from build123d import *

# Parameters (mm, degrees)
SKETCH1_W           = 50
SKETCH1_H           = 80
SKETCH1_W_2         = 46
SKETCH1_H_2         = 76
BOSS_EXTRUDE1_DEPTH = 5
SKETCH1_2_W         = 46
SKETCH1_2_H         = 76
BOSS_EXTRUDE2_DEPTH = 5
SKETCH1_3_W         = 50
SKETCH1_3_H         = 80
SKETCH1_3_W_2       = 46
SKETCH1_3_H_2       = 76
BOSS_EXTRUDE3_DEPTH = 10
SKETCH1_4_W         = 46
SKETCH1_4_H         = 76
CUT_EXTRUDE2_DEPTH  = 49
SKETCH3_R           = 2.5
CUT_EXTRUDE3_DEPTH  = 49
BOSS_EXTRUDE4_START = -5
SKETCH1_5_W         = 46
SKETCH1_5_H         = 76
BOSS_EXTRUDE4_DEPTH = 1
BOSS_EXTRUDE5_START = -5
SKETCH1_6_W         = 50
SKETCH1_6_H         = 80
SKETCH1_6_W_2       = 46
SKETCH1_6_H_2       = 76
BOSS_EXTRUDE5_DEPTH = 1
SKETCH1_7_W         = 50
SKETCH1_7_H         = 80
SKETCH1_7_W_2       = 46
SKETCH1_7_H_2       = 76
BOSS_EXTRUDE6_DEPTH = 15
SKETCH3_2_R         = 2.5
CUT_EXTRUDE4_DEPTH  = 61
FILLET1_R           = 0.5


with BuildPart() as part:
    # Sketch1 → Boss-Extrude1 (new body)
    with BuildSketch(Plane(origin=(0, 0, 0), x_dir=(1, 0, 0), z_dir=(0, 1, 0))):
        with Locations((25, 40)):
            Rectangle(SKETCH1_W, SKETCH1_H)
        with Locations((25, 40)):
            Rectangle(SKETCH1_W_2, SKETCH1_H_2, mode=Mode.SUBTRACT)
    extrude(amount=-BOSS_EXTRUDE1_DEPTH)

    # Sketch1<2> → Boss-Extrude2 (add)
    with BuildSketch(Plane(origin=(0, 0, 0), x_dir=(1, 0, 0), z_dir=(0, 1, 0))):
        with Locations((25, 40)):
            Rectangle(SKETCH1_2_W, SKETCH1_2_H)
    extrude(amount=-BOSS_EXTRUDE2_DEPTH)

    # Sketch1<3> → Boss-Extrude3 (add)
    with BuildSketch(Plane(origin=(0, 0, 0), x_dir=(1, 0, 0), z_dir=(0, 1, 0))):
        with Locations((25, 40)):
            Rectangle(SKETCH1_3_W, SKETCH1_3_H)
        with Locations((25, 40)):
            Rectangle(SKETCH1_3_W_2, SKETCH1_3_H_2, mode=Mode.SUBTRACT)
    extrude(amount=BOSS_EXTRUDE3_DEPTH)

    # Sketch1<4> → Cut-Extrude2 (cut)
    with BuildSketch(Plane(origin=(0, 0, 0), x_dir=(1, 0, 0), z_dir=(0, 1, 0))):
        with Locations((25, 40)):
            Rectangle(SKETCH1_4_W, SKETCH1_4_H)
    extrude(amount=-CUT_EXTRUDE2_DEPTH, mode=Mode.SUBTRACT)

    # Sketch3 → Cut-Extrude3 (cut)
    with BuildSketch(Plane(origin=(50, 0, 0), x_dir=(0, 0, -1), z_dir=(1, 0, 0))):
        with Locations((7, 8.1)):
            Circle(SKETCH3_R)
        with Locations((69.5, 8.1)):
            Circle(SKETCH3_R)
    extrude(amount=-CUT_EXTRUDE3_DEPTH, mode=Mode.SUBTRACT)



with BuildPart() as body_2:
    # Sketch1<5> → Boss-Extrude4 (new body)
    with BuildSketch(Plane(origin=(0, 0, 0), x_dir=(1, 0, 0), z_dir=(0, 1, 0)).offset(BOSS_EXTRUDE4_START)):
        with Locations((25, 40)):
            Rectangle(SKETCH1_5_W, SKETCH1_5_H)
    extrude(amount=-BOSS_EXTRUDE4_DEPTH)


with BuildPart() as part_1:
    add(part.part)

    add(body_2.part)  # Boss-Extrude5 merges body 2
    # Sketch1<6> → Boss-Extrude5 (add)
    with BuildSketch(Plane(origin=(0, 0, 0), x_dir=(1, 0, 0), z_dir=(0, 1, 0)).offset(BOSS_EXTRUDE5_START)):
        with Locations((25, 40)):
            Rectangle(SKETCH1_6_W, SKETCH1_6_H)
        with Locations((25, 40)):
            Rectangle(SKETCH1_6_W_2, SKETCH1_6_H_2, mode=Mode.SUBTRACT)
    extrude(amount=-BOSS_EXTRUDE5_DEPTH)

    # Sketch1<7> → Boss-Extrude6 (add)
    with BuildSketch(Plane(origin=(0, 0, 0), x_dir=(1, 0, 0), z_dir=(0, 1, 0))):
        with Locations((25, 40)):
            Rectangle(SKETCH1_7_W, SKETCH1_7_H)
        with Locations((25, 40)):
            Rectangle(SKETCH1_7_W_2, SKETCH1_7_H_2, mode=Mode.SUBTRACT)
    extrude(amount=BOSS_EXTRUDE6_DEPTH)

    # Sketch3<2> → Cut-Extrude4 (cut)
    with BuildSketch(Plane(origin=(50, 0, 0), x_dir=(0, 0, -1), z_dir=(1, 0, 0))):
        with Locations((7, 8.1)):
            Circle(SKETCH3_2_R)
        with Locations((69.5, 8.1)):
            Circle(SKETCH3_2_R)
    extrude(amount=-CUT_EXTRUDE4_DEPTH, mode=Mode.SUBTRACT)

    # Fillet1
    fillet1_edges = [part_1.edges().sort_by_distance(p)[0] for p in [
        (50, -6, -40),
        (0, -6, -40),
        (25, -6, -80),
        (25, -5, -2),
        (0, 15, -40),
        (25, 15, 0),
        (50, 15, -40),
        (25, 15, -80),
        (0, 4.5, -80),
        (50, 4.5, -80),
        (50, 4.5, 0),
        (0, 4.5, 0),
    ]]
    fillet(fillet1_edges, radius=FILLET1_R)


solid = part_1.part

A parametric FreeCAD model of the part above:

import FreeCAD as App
import Part
import Sketcher
from FreeCAD import Vector


def edges_at(feature, points):
    """Names of the edges that pass closest to the given points."""
    edges = feature.Shape.Edges
    near = lambda p: min(range(len(edges)), key=lambda i: edges[i].distToShape(Part.Vertex(*p))[0])
    return sorted({f"Edge{near(p) + 1}" for p in points})


def add_polygon(sketch, points):
    """Adds a closed chain of lines whose ends are joined by coincident constraints."""
    first, n = sketch.GeometryCount, len(points)
    for a, b in zip(points, points[1:] + points[:1]):
        sketch.addGeometry(Part.LineSegment(App.Vector(*a, 0), App.Vector(*b, 0)), False)
    for i in range(n):
        sketch.addConstraint(Sketcher.Constraint("Coincident", first + i, 2, first + (i + 1) % n, 1))

doc = App.newDocument("Part")
body = doc.addObject("PartDesign::Body", "Body")

# Sketch on XZ plane
sketch1 = doc.addObject("Sketcher::SketchObject", "Sketch")
body.addObject(sketch1)
sketch1.AttachmentSupport = (doc.XZ_Plane, [""])
sketch1.MapMode = "FlatFace"
add_polygon(sketch1, [(0, -80), (0, 0), (50, 0), (50, -80)])  # lines 0-3
add_polygon(sketch1, [(48, -2), (2, -2), (2, -78), (48, -78)])  # lines 4-7
sketch1.addConstraint([
    Sketcher.Constraint("Vertical", 0),
    Sketcher.Constraint("Horizontal", 1),
    Sketcher.Constraint("Vertical", 2),
    Sketcher.Constraint("Horizontal", 3),
    Sketcher.Constraint("Horizontal", 4),
    Sketcher.Constraint("Vertical", 5),
    Sketcher.Constraint("Horizontal", 6),
    Sketcher.Constraint("Vertical", 7),
    Sketcher.Constraint("Coincident", 0, 2, -1, 1),
    Sketcher.Constraint("DistanceX", 1, 1, 1, 2, 50.0),
    Sketcher.Constraint("DistanceX", 4, 2, 4, 1, 46.0),
    Sketcher.Constraint("DistanceY", 0, 1, 0, 2, 80.0),
    Sketcher.Constraint("DistanceY", 5, 2, 5, 1, 76.0),
    Sketcher.Constraint("DistanceX", -1, 1, 4, 2, 2.0),
    Sketcher.Constraint("DistanceY", 4, 2, -1, 1, 2.0),
])
pad1 = doc.addObject("PartDesign::Pad", "Pad")
body.addObject(pad1)
pad1.Profile = sketch1
pad1.Length = 5

# Sketch on XZ plane
sketch2 = doc.addObject("Sketcher::SketchObject", "Sketch001")
body.addObject(sketch2)
sketch2.AttachmentSupport = (doc.XZ_Plane, [""])
sketch2.MapMode = "FlatFace"
add_polygon(sketch2, [(2, -78), (2, -2), (48, -2), (48, -78)])  # lines 0-3
sketch2.addConstraint([
    Sketcher.Constraint("Vertical", 0),
    Sketcher.Constraint("Horizontal", 1),
    Sketcher.Constraint("Vertical", 2),
    Sketcher.Constraint("Horizontal", 3),
    Sketcher.Constraint("DistanceX", 1, 1, 1, 2, 46.0),
    Sketcher.Constraint("DistanceY", 0, 1, 0, 2, 76.0),
    Sketcher.Constraint("DistanceX", -1, 1, 0, 2, 2.0),
    Sketcher.Constraint("DistanceY", 0, 2, -1, 1, 2.0),
])
pad2 = doc.addObject("PartDesign::Pad", "Pad001")
body.addObject(pad2)
pad2.Profile = sketch2
pad2.Length = 5

# Sketch on XZ plane
sketch3 = doc.addObject("Sketcher::SketchObject", "Sketch002")
body.addObject(sketch3)
sketch3.AttachmentSupport = (doc.XZ_Plane, [""])
sketch3.MapMode = "FlatFace"
add_polygon(sketch3, [(0, -80), (0, 0), (50, 0), (50, -80)])  # lines 0-3
add_polygon(sketch3, [(48, -2), (2, -2), (2, -78), (48, -78)])  # lines 4-7
sketch3.addConstraint([
    Sketcher.Constraint("Vertical", 0),
    Sketcher.Constraint("Horizontal", 1),
    Sketcher.Constraint("Vertical", 2),
    Sketcher.Constraint("Horizontal", 3),
    Sketcher.Constraint("Horizontal", 4),
    Sketcher.Constraint("Vertical", 5),
    Sketcher.Constraint("Horizontal", 6),
    Sketcher.Constraint("Vertical", 7),
    Sketcher.Constraint("Coincident", 0, 2, -1, 1),
    Sketcher.Constraint("DistanceX", 1, 1, 1, 2, 50.0),
    Sketcher.Constraint("DistanceX", 4, 2, 4, 1, 46.0),
    Sketcher.Constraint("DistanceY", 0, 1, 0, 2, 80.0),
    Sketcher.Constraint("DistanceY", 5, 2, 5, 1, 76.0),
    Sketcher.Constraint("DistanceX", -1, 1, 4, 2, 2.0),
    Sketcher.Constraint("DistanceY", 4, 2, -1, 1, 2.0),
])
pad3 = doc.addObject("PartDesign::Pad", "Pad002")
body.addObject(pad3)
pad3.Profile = sketch3
pad3.Length = 10
pad3.Reversed = True

# Sketch on XZ plane
sketch4 = doc.addObject("Sketcher::SketchObject", "Sketch003")
body.addObject(sketch4)
sketch4.AttachmentSupport = (doc.XZ_Plane, [""])
sketch4.MapMode = "FlatFace"
add_polygon(sketch4, [(2, -78), (2, -2), (48, -2), (48, -78)])  # lines 0-3
sketch4.addConstraint([
    Sketcher.Constraint("Vertical", 0),
    Sketcher.Constraint("Horizontal", 1),
    Sketcher.Constraint("Vertical", 2),
    Sketcher.Constraint("Horizontal", 3),
    Sketcher.Constraint("DistanceX", 1, 1, 1, 2, 46.0),
    Sketcher.Constraint("DistanceY", 0, 1, 0, 2, 76.0),
    Sketcher.Constraint("DistanceX", -1, 1, 0, 2, 2.0),
    Sketcher.Constraint("DistanceY", 0, 2, -1, 1, 2.0),
])
pocket1 = doc.addObject("PartDesign::Pocket", "Pocket")
body.addObject(pocket1)
pocket1.Profile = sketch4
pocket1.Length = 49
pocket1.Reversed = True

# Sketch on YZ plane
sketch5 = doc.addObject("Sketcher::SketchObject", "Sketch004")
body.addObject(sketch5)
sketch5.AttachmentSupport = (doc.YZ_Plane, [""])
sketch5.MapMode = "FlatFace"
sketch5.AttachmentOffset = App.Placement(Vector(0, 0, 50), App.Rotation())
sketch5.addGeometry([
    Part.Circle(Vector(8.1, -7, 0), Vector(0, 0, 1), 2.5),
    Part.Circle(Vector(8.1, -69.5, 0), Vector(0, 0, 1), 2.5),
], False)
sketch5.addConstraint([
    Sketcher.Constraint("Equal", 0, 1),
    Sketcher.Constraint("Vertical", 0, 3, 1, 3),
    Sketcher.Constraint("Diameter", 0, 5.0),
    Sketcher.Constraint("DistanceY", 0, 3, -1, 1, 7.0),
    Sketcher.Constraint("DistanceX", -1, 1, 0, 3, 8.1),
    Sketcher.Constraint("DistanceY", 1, 3, -1, 1, 69.5),
])
pocket2 = doc.addObject("PartDesign::Pocket", "Pocket001")
body.addObject(pocket2)
pocket2.Profile = sketch5
pocket2.Length = 49
body2 = doc.addObject("PartDesign::Body", "Body001")

# Sketch on XZ plane
sketch6 = doc.addObject("Sketcher::SketchObject", "Sketch005")
body2.addObject(sketch6)
sketch6.AttachmentSupport = (doc.getObject("XZ_Plane001"), [""])
sketch6.MapMode = "FlatFace"
sketch6.AttachmentOffset = App.Placement(Vector(0, 0, 5), App.Rotation())
add_polygon(sketch6, [(2, -78), (2, -2), (48, -2), (48, -78)])  # lines 0-3
sketch6.addConstraint([
    Sketcher.Constraint("Vertical", 0),
    Sketcher.Constraint("Horizontal", 1),
    Sketcher.Constraint("Vertical", 2),
    Sketcher.Constraint("Horizontal", 3),
    Sketcher.Constraint("DistanceX", 1, 1, 1, 2, 46.0),
    Sketcher.Constraint("DistanceY", 0, 1, 0, 2, 76.0),
    Sketcher.Constraint("DistanceX", -1, 1, 0, 2, 2.0),
    Sketcher.Constraint("DistanceY", 0, 2, -1, 1, 2.0),
])
pad4 = doc.addObject("PartDesign::Pad", "Pad003")
body2.addObject(pad4)
pad4.Profile = sketch6
pad4.Length = 1
body.AllowCompound = True
doc.recompute()

boolean = doc.addObject("PartDesign::Boolean", "Boolean")
body.addObject(boolean)
boolean.Type = "Fuse"
boolean.addObjects([body2])

# Sketch on XZ plane
sketch7 = doc.addObject("Sketcher::SketchObject", "Sketch006")
body.addObject(sketch7)
sketch7.AttachmentSupport = (doc.XZ_Plane, [""])
sketch7.MapMode = "FlatFace"
sketch7.AttachmentOffset = App.Placement(Vector(0, 0, 5), App.Rotation())
add_polygon(sketch7, [(0, -80), (0, 0), (50, 0), (50, -80)])  # lines 0-3
add_polygon(sketch7, [(48, -2), (2, -2), (2, -78), (48, -78)])  # lines 4-7
sketch7.addConstraint([
    Sketcher.Constraint("Vertical", 0),
    Sketcher.Constraint("Horizontal", 1),
    Sketcher.Constraint("Vertical", 2),
    Sketcher.Constraint("Horizontal", 3),
    Sketcher.Constraint("Horizontal", 4),
    Sketcher.Constraint("Vertical", 5),
    Sketcher.Constraint("Horizontal", 6),
    Sketcher.Constraint("Vertical", 7),
    Sketcher.Constraint("Coincident", 0, 2, -1, 1),
    Sketcher.Constraint("DistanceX", 1, 1, 1, 2, 50.0),
    Sketcher.Constraint("DistanceX", 4, 2, 4, 1, 46.0),
    Sketcher.Constraint("DistanceY", 0, 1, 0, 2, 80.0),
    Sketcher.Constraint("DistanceY", 5, 2, 5, 1, 76.0),
    Sketcher.Constraint("DistanceX", -1, 1, 4, 2, 2.0),
    Sketcher.Constraint("DistanceY", 4, 2, -1, 1, 2.0),
])
pad5 = doc.addObject("PartDesign::Pad", "Pad004")
body.addObject(pad5)
pad5.Profile = sketch7
pad5.Length = 1

# Sketch on XZ plane
sketch8 = doc.addObject("Sketcher::SketchObject", "Sketch007")
body.addObject(sketch8)
sketch8.AttachmentSupport = (doc.XZ_Plane, [""])
sketch8.MapMode = "FlatFace"
add_polygon(sketch8, [(0, -80), (0, 0), (50, 0), (50, -80)])  # lines 0-3
add_polygon(sketch8, [(48, -2), (2, -2), (2, -78), (48, -78)])  # lines 4-7
sketch8.addConstraint([
    Sketcher.Constraint("Vertical", 0),
    Sketcher.Constraint("Horizontal", 1),
    Sketcher.Constraint("Vertical", 2),
    Sketcher.Constraint("Horizontal", 3),
    Sketcher.Constraint("Horizontal", 4),
    Sketcher.Constraint("Vertical", 5),
    Sketcher.Constraint("Horizontal", 6),
    Sketcher.Constraint("Vertical", 7),
    Sketcher.Constraint("Coincident", 0, 2, -1, 1),
    Sketcher.Constraint("DistanceX", 1, 1, 1, 2, 50.0),
    Sketcher.Constraint("DistanceX", 4, 2, 4, 1, 46.0),
    Sketcher.Constraint("DistanceY", 0, 1, 0, 2, 80.0),
    Sketcher.Constraint("DistanceY", 5, 2, 5, 1, 76.0),
    Sketcher.Constraint("DistanceX", -1, 1, 4, 2, 2.0),
    Sketcher.Constraint("DistanceY", 4, 2, -1, 1, 2.0),
])
pad6 = doc.addObject("PartDesign::Pad", "Pad005")
body.addObject(pad6)
pad6.Profile = sketch8
pad6.Length = 15
pad6.Reversed = True

# Sketch on YZ plane
sketch9 = doc.addObject("Sketcher::SketchObject", "Sketch008")
body.addObject(sketch9)
sketch9.AttachmentSupport = (doc.YZ_Plane, [""])
sketch9.MapMode = "FlatFace"
sketch9.AttachmentOffset = App.Placement(Vector(0, 0, 50), App.Rotation())
sketch9.addGeometry([
    Part.Circle(Vector(8.1, -7, 0), Vector(0, 0, 1), 2.5),
    Part.Circle(Vector(8.1, -69.5, 0), Vector(0, 0, 1), 2.5),
], False)
sketch9.addConstraint([
    Sketcher.Constraint("Equal", 0, 1),
    Sketcher.Constraint("Vertical", 0, 3, 1, 3),
    Sketcher.Constraint("Diameter", 0, 5.0),
    Sketcher.Constraint("DistanceY", 0, 3, -1, 1, 7.0),
    Sketcher.Constraint("DistanceX", -1, 1, 0, 3, 8.1),
    Sketcher.Constraint("DistanceY", 1, 3, -1, 1, 69.5),
])
pocket3 = doc.addObject("PartDesign::Pocket", "Pocket002")
body.addObject(pocket3)
pocket3.Profile = sketch9
pocket3.Length = 61
doc.recompute()

fillet = doc.addObject("PartDesign::Fillet", "Fillet")
body.addObject(fillet)
fillet.Base = (pocket3, edges_at(pocket3, [
    (50, -6, -40),
    (0, -6, -40),
    (25, -6, -80),
    (25, -5, -2),
    (0, 15, -40),
    (25, 15, 0),
    (50, 15, -40),
    (25, 15, -80),
    (0, 4.5, -80),
    (50, 4.5, -80),
    (50, 4.5, 0),
    (0, 4.5, 0),
]))
fillet.Radius = 0.5

doc.recompute()
